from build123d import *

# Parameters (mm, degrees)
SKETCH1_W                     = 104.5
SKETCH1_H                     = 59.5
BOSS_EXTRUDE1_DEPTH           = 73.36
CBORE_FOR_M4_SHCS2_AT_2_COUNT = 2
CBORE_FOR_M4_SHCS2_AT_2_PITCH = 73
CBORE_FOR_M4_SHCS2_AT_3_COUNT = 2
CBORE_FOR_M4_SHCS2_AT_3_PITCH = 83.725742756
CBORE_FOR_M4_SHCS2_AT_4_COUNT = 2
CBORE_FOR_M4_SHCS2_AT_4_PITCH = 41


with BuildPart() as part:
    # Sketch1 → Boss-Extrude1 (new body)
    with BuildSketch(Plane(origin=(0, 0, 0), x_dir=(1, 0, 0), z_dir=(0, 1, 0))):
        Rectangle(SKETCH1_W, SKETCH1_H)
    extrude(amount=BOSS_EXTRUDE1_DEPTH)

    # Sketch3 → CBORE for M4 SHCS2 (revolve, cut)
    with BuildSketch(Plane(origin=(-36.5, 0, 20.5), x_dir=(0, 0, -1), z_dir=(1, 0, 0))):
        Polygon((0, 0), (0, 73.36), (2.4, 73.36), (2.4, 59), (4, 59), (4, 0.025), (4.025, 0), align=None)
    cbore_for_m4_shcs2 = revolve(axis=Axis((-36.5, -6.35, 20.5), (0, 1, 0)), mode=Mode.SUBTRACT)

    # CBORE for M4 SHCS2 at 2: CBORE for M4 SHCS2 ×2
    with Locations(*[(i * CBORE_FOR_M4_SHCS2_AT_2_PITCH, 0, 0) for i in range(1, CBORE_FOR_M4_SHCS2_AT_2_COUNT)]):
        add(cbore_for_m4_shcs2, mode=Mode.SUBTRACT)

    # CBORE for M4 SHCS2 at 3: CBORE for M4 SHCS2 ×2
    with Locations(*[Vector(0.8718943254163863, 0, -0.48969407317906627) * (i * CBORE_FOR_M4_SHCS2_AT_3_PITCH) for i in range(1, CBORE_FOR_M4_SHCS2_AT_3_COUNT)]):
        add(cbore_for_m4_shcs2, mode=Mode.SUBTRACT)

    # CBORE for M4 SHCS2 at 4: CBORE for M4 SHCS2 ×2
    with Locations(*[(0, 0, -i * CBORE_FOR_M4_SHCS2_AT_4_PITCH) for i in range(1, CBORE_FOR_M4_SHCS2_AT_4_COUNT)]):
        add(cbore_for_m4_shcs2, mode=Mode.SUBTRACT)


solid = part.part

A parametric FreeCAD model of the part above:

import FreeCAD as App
import Part
import Sketcher
Q = App.Units.Quantity


def add_polygon(sketch, points):
    """Adds a closed chain of lines whose ends are joined by coincident constraints."""
    first, n = sketch.GeometryCount, len(points)
    for a, b in zip(points, points[1:] + points[:1]):
        sketch.addGeometry(Part.LineSegment(App.Vector(*a, 0), App.Vector(*b, 0)), False)
    for i in range(n):
        sketch.addConstraint(Sketcher.Constraint("Coincident", first + i, 2, first + (i + 1) % n, 1))

doc = App.newDocument("Part")
body = doc.addObject("PartDesign::Body", "Body")

# Sketch on XZ plane
sketch1 = body.newObject("Sketcher::SketchObject", "Sketch")
sketch1.AttachmentSupport = (doc.getObject("XZ_Plane"), [""])
sketch1.MapMode = "FlatFace"
add_polygon(sketch1, [(-52, -30), (-52, 30), (52, 30), (52, -30)])  # lines 0-3
sketch1.addConstraint([
    Sketcher.Constraint("Vertical", 0),
    Sketcher.Constraint("Horizontal", 1),
    Sketcher.Constraint("Vertical", 2),
    Sketcher.Constraint("Horizontal", 3),
    Sketcher.Constraint("Symmetric", 0, 2, 2, 2, -1, 1),
    Sketcher.Constraint("DistanceX", 1, 1, 1, 2, 104.5),
    Sketcher.Constraint("DistanceY", 0, 1, 0, 2, 59.5),
])
pad1 = body.newObject("PartDesign::Pad", "Pad")
pad1.Profile = sketch1
pad1.Length = 73.36
pad1.Reversed = True

# Sketch on YZ plane
sketch2 = body.newObject("Sketcher::SketchObject", "Sketch001")
sketch2.AttachmentSupport = (doc.getObject("YZ_Plane"), [""])
sketch2.MapMode = "FlatFace"
sketch2.AttachmentOffset = App.Placement(App.Vector(0, 0, -36.5), App.Rotation())
add_polygon(sketch2, [(73.36, 20.5), (0, 20.5), (0, 16.475), (0.025, 16.5), (59, 16.5), (59, 18.1), (73.36, 18.1)])  # lines 0-6
sketch2.addGeometry(Part.LineSegment(App.Vector(0, 20.5, 0), App.Vector(73.36, 20.5, 0)), True)  # axis
sketch2.addConstraint([
    Sketcher.Constraint("Horizontal", 0),
    Sketcher.Constraint("Vertical", 1),
    Sketcher.Constraint("Horizontal", 3),
    Sketcher.Constraint("Vertical", 4),
    Sketcher.Constraint("Horizontal", 5),
    Sketcher.Constraint("Vertical", 6),
    Sketcher.Constraint("Horizontal", 7),
    Sketcher.Constraint("Coincident", 7, 1, 0, 2),
    Sketcher.Constraint("PointOnObject", 0, 2, -2),
    Sketcher.Constraint("Vertical", 5, 2, 7, 2),
    Sketcher.Constraint("Angle", 2, Q("45 deg")),
    Sketcher.Constraint("DistanceY", 4, 1, 4, 2, 1.6),
    Sketcher.Constraint("DistanceY", 6, 1, 6, 2, 2.4),
    Sketcher.Constraint("DistanceX", -1, 1, 3, 2, 59.0),
    Sketcher.Constraint("DistanceX", 0, 2, 0, 1, 73.36),
    Sketcher.Constraint("DistanceY", -1, 1, 0, 2, 20.5),
    Sketcher.Constraint("DistanceX", 3, 1, 3, 2, 58.975),
])
groove = body.newObject("PartDesign::Groove", "Groove")
groove.Profile = sketch2
groove.ReferenceAxis = (sketch2, ["Axis0"])
groove.Angle = 360
doc.recompute()

linearpattern = body.newObject("PartDesign::LinearPattern", "LinearPattern")
linearpattern.Originals = [groove]
linearpattern.Direction = (doc.getObject("X_Axis"), [""])
linearpattern.Mode = "offset"
linearpattern.Offset = 73
linearpattern.Occurrences = 2
body.Tip = linearpattern
doc.recompute()

datumline = body.newObject("PartDesign::Line", "DatumLine")
datumline.Placement = App.Placement(App.Vector(0, 0, 0), App.Rotation(App.Vector(0, 0, 1), App.Vector(0.871894325, 0, -0.489694073)))
linearpattern2 = body.newObject("PartDesign::LinearPattern", "LinearPattern001")
linearpattern2.Originals = [groove]
linearpattern2.Direction = (datumline, [""])
linearpattern2.Mode = "offset"
linearpattern2.Offset = 83.725743
linearpattern2.Occurrences = 2
body.Tip = linearpattern2
doc.recompute()

linearpattern3 = body.newObject("PartDesign::LinearPattern", "LinearPattern002")
linearpattern3.Originals = [groove]
linearpattern3.Direction = (doc.getObject("Z_Axis"), [""])
linearpattern3.Mode = "offset"
linearpattern3.Offset = 41
linearpattern3.Occurrences = 2
linearpattern3.Reversed = True
body.Tip = linearpattern3

doc.recompute()
